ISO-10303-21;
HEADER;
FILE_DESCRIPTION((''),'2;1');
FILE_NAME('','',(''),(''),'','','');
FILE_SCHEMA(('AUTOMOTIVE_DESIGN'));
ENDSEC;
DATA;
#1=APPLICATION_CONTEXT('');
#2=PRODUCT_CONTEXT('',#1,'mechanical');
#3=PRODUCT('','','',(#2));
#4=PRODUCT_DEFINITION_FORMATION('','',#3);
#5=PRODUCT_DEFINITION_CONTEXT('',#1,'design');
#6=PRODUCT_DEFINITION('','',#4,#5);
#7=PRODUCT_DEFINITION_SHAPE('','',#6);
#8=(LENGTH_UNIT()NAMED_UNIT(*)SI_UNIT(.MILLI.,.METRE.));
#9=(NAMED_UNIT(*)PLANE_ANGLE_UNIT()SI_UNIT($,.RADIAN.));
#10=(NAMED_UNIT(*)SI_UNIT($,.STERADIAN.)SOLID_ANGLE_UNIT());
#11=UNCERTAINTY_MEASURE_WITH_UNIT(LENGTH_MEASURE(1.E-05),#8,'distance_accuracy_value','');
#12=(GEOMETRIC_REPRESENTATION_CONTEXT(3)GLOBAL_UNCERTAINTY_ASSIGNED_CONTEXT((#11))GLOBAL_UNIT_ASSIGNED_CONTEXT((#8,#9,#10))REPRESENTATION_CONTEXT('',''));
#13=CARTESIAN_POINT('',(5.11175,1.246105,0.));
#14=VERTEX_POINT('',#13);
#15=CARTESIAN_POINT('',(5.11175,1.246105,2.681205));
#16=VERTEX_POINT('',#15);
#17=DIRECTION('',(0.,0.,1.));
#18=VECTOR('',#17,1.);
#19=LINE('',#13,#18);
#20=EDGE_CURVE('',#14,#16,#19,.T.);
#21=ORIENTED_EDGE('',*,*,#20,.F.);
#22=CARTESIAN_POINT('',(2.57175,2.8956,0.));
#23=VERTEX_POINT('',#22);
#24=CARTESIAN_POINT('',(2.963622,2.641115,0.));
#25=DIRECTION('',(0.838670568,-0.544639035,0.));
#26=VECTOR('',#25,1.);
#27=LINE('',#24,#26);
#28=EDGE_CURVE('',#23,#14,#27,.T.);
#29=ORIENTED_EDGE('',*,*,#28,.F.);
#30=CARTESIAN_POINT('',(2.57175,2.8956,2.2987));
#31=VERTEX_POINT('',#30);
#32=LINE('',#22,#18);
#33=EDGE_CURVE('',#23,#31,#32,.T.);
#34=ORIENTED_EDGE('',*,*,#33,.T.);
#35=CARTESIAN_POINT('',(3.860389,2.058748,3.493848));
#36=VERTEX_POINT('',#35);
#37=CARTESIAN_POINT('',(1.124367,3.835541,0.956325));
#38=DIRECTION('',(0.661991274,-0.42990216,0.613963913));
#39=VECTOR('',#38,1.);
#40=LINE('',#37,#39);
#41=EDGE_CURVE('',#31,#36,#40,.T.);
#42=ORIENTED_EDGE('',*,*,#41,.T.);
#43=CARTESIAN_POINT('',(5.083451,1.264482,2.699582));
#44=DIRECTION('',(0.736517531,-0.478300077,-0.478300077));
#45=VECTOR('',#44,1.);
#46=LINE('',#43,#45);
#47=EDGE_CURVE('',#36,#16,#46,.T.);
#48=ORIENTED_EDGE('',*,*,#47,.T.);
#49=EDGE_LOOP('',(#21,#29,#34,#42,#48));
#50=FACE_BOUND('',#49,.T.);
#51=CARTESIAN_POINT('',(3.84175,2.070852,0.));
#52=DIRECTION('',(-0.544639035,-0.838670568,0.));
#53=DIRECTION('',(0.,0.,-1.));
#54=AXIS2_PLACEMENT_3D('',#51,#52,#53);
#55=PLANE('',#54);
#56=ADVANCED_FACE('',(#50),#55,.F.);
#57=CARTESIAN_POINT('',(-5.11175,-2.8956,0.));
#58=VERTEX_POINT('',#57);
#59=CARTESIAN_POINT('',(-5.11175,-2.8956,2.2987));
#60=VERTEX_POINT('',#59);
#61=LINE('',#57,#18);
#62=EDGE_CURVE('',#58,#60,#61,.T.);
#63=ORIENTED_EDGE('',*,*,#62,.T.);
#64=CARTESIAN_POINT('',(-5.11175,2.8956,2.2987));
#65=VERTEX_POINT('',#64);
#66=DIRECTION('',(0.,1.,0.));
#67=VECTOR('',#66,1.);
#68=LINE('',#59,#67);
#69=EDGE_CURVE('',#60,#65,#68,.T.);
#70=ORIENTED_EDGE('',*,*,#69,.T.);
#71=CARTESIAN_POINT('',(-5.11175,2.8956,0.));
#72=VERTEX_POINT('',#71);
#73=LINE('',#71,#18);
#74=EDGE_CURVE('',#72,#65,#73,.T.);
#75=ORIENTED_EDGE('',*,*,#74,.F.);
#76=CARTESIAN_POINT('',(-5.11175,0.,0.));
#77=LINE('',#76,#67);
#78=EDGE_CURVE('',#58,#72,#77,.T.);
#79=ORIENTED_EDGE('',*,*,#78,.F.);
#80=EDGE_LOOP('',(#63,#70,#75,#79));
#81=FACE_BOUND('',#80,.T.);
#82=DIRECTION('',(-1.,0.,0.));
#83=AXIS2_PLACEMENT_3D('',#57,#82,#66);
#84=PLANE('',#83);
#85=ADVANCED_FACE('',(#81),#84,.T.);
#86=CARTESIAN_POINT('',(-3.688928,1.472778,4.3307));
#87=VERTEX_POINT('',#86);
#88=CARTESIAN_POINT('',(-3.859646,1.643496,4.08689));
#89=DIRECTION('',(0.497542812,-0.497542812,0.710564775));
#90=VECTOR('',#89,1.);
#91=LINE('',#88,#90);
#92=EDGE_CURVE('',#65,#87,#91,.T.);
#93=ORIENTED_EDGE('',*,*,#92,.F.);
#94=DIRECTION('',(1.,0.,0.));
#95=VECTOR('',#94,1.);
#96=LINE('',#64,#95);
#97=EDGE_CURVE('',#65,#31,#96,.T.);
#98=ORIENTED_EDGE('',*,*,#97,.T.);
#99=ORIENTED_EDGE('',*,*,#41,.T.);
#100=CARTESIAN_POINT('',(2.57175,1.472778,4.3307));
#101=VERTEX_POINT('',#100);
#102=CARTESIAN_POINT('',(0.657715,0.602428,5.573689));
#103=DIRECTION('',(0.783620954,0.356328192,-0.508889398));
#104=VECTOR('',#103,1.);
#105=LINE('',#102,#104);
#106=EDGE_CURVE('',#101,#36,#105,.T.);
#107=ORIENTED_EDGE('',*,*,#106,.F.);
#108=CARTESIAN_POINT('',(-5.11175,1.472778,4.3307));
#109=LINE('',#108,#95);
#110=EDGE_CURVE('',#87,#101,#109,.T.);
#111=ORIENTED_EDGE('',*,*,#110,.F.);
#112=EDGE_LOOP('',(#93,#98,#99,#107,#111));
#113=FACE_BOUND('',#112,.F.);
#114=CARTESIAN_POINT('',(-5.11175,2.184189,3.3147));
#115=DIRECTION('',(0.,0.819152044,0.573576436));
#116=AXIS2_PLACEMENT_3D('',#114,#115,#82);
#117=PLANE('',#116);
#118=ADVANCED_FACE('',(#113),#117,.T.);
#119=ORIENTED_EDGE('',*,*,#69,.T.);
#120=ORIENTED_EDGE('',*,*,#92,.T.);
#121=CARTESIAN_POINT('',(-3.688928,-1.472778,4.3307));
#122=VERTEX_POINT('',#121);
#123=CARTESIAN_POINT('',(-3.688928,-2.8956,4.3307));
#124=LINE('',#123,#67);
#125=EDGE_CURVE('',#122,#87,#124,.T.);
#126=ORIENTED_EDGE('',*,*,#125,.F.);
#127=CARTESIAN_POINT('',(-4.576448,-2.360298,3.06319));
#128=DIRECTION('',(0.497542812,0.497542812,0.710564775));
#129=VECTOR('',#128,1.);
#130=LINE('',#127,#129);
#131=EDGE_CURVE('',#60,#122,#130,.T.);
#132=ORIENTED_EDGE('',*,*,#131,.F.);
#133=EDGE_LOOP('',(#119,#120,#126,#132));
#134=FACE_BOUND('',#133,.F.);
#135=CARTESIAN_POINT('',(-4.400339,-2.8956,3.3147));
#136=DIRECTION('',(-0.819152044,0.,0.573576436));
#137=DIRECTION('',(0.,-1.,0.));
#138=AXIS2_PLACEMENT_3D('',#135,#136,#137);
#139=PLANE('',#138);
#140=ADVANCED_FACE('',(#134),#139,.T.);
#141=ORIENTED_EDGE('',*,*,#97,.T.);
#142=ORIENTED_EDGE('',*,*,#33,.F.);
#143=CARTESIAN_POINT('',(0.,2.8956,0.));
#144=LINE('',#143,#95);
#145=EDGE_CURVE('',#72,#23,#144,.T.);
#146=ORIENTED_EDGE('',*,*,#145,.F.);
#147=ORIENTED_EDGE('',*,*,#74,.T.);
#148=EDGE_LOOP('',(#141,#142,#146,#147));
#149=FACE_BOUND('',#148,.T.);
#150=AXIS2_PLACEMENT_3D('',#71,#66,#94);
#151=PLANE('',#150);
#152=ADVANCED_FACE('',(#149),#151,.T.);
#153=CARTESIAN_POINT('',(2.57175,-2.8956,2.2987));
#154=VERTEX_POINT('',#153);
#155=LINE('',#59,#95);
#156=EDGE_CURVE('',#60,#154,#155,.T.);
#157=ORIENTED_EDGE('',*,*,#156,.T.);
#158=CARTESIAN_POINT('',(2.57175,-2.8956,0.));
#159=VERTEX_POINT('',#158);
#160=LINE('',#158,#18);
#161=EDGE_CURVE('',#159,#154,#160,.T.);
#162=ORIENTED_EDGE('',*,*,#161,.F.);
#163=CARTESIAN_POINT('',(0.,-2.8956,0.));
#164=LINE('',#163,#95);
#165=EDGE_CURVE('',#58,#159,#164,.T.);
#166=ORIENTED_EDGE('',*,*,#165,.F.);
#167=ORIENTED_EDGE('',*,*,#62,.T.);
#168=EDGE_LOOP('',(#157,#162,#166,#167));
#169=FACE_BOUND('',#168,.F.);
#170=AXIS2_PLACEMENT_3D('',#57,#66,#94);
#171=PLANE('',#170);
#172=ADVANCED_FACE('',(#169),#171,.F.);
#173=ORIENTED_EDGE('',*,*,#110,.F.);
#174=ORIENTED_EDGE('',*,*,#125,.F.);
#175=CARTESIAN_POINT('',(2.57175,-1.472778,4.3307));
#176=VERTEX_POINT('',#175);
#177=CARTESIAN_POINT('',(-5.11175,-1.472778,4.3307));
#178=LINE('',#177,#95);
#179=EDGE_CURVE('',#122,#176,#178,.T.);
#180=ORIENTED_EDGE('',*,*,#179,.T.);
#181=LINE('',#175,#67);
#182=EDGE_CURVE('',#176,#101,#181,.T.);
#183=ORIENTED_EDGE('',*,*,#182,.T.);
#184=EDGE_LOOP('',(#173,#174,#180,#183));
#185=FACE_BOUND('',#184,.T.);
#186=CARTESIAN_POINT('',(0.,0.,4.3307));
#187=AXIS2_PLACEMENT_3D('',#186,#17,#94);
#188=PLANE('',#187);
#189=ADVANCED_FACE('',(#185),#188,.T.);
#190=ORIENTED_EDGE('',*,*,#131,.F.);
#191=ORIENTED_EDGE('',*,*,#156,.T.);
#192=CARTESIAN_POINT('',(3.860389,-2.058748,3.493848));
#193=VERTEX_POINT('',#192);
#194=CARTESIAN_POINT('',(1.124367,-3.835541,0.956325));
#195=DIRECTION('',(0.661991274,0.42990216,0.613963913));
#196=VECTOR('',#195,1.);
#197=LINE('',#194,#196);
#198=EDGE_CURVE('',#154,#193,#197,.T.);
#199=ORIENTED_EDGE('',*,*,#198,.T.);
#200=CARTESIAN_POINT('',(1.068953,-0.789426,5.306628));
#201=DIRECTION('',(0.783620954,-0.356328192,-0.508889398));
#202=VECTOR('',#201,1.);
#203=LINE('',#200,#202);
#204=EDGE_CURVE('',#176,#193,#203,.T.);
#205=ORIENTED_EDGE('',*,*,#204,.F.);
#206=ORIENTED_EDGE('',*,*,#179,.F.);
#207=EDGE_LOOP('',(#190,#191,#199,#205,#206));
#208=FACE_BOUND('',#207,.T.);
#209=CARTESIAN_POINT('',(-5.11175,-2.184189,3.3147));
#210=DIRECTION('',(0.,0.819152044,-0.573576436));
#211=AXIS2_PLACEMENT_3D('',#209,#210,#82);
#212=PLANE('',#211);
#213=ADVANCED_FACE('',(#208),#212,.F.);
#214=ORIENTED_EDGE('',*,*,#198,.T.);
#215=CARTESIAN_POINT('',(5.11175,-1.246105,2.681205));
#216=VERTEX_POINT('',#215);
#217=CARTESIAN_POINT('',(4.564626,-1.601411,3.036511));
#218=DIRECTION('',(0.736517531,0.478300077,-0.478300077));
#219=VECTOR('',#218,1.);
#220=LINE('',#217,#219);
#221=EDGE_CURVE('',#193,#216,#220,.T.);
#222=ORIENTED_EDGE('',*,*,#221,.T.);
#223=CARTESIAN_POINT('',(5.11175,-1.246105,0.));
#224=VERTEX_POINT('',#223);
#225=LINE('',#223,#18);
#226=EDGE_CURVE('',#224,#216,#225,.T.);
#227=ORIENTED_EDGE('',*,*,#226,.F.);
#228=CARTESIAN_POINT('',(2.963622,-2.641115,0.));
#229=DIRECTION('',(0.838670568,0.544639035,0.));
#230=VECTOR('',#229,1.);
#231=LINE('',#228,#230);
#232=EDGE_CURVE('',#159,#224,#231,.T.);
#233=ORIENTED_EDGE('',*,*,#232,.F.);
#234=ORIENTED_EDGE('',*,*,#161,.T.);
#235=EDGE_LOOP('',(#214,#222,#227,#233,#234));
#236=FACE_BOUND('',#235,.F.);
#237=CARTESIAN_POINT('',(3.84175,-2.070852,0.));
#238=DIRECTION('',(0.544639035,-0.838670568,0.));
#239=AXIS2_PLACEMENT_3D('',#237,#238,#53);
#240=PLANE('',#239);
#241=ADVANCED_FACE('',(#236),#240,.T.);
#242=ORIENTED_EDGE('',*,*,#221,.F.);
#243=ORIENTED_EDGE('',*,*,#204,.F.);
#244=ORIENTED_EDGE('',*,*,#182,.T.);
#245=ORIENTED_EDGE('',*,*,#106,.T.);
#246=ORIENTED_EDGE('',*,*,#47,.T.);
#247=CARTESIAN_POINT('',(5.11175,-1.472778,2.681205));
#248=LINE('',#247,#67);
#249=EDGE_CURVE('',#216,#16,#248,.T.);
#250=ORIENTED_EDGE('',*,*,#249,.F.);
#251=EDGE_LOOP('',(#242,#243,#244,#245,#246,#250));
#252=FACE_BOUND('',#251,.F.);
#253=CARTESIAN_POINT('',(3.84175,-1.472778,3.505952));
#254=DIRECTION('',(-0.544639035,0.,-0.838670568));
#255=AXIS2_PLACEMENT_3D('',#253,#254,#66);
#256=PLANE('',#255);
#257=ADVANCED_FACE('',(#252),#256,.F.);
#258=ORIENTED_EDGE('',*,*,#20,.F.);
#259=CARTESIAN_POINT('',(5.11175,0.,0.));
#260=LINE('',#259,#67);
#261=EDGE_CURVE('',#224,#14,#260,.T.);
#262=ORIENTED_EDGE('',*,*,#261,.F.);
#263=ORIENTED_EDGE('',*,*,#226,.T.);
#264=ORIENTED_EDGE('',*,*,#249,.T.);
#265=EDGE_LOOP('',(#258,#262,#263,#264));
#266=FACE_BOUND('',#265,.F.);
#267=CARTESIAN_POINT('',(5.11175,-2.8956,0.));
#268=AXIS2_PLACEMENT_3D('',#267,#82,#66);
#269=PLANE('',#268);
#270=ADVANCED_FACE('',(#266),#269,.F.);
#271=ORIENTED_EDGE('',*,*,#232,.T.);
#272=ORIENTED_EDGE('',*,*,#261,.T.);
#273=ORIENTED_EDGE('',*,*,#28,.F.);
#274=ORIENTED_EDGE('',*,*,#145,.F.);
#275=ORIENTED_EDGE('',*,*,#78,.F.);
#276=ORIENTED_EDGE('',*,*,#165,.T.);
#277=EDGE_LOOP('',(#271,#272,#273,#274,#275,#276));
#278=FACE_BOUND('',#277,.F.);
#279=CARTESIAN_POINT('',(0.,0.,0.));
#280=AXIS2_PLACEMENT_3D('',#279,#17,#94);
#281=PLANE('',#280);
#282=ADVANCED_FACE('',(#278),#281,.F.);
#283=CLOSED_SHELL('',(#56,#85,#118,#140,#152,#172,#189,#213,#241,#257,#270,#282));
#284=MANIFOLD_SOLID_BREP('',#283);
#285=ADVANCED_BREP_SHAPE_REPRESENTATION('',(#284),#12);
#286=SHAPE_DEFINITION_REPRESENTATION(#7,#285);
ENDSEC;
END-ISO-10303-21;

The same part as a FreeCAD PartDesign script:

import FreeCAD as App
import Part
import Sketcher
Q = App.Units.Quantity


def edges_at(feature, points):
    """Names of the edges that pass closest to the given points."""
    edges = feature.Shape.Edges
    near = lambda p: min(range(len(edges)), key=lambda i: edges[i].distToShape(Part.Vertex(*p))[0])
    return sorted({f"Edge{near(p) + 1}" for p in points})

doc = App.newDocument("Part")
body = doc.addObject("PartDesign::Body", "Body")

# Sketch on XY plane
sketch1 = body.newObject("Sketcher::SketchObject", "Sketch")
sketch1.AttachmentSupport = (doc.getObject("XY_Plane"), [""])
sketch1.MapMode = "FlatFace"
sketch1.addGeometry(Part.LineSegment(App.Vector(-5, 3, 0), App.Vector(-5, -3, 0)), False)
sketch1.addGeometry(Part.LineSegment(App.Vector(-5, -3, 0), App.Vector(5, -3, 0)), False)
sketch1.addGeometry(Part.LineSegment(App.Vector(5, -3, 0), App.Vector(5, 3, 0)), False)
sketch1.addGeometry(Part.LineSegment(App.Vector(5, 3, 0), App.Vector(-5, 3, 0)), False)
sketch1.addConstraint(Sketcher.Constraint("Coincident", 0, 2, 1, 1))
sketch1.addConstraint(Sketcher.Constraint("Coincident", 1, 2, 2, 1))
sketch1.addConstraint(Sketcher.Constraint("Coincident", 2, 2, 3, 1))
sketch1.addConstraint(Sketcher.Constraint("Coincident", 3, 2, 0, 1))
sketch1.addConstraint(Sketcher.Constraint("Vertical", 0))
sketch1.addConstraint(Sketcher.Constraint("Horizontal", 1))
sketch1.addConstraint(Sketcher.Constraint("Vertical", 2))
sketch1.addConstraint(Sketcher.Constraint("Horizontal", 3))
sketch1.addConstraint(Sketcher.Constraint("Symmetric", 0, 2, 2, 2, -1, 1))
sketch1.addConstraint(Sketcher.Constraint("DistanceY", 0, 2, 0, 1, Q("0.228 in")))
sketch1.addConstraint(Sketcher.Constraint("DistanceX", 1, 1, 1, 2, Q("0.4025 in")))
pad1 = body.newObject("PartDesign::Pad", "Pad")
pad1.Profile = sketch1
pad1.Length = Q("0.1705 in")
doc.recompute()

chamfer = body.newObject("PartDesign::Chamfer", "Chamfer")
chamfer.Base = (pad1, edges_at(pad1, [(0, -2.896, 4.331), (0, 2.896, 4.331), (-5.112, 0, 4.331)]))
chamfer.ChamferType = "Two distances"
chamfer.Size = Q("0.08 in")
chamfer.Size2 = 1.422822
doc.recompute()

chamfer2 = body.newObject("PartDesign::Chamfer", "Chamfer001")
chamfer2.Base = (chamfer, edges_at(chamfer, [(5.112, 0, 4.331)]))
chamfer2.ChamferType = "Two distances"
chamfer2.Size = Q("0.1 in")
chamfer2.Size2 = 1.649495
chamfer2.FlipDirection = True
doc.recompute()

chamfer3 = body.newObject("PartDesign::Chamfer", "Chamfer002")
chamfer3.Base = (chamfer2, edges_at(chamfer2, [(5.112, -2.896, 1.149)]))
chamfer3.ChamferType = "Two distances"
chamfer3.Size = Q("0.1 in")
chamfer3.Size2 = 1.649495
chamfer3.FlipDirection = True
doc.recompute()

chamfer4 = body.newObject("PartDesign::Chamfer", "Chamfer003")
chamfer4.Base = (chamfer3, edges_at(chamfer3, [(5.112, 2.896, 1.149)]))
chamfer4.ChamferType = "Two distances"
chamfer4.Size = Q("0.1 in")
chamfer4.Size2 = 1.649495
chamfer4.FlipDirection = True

doc.recompute()
